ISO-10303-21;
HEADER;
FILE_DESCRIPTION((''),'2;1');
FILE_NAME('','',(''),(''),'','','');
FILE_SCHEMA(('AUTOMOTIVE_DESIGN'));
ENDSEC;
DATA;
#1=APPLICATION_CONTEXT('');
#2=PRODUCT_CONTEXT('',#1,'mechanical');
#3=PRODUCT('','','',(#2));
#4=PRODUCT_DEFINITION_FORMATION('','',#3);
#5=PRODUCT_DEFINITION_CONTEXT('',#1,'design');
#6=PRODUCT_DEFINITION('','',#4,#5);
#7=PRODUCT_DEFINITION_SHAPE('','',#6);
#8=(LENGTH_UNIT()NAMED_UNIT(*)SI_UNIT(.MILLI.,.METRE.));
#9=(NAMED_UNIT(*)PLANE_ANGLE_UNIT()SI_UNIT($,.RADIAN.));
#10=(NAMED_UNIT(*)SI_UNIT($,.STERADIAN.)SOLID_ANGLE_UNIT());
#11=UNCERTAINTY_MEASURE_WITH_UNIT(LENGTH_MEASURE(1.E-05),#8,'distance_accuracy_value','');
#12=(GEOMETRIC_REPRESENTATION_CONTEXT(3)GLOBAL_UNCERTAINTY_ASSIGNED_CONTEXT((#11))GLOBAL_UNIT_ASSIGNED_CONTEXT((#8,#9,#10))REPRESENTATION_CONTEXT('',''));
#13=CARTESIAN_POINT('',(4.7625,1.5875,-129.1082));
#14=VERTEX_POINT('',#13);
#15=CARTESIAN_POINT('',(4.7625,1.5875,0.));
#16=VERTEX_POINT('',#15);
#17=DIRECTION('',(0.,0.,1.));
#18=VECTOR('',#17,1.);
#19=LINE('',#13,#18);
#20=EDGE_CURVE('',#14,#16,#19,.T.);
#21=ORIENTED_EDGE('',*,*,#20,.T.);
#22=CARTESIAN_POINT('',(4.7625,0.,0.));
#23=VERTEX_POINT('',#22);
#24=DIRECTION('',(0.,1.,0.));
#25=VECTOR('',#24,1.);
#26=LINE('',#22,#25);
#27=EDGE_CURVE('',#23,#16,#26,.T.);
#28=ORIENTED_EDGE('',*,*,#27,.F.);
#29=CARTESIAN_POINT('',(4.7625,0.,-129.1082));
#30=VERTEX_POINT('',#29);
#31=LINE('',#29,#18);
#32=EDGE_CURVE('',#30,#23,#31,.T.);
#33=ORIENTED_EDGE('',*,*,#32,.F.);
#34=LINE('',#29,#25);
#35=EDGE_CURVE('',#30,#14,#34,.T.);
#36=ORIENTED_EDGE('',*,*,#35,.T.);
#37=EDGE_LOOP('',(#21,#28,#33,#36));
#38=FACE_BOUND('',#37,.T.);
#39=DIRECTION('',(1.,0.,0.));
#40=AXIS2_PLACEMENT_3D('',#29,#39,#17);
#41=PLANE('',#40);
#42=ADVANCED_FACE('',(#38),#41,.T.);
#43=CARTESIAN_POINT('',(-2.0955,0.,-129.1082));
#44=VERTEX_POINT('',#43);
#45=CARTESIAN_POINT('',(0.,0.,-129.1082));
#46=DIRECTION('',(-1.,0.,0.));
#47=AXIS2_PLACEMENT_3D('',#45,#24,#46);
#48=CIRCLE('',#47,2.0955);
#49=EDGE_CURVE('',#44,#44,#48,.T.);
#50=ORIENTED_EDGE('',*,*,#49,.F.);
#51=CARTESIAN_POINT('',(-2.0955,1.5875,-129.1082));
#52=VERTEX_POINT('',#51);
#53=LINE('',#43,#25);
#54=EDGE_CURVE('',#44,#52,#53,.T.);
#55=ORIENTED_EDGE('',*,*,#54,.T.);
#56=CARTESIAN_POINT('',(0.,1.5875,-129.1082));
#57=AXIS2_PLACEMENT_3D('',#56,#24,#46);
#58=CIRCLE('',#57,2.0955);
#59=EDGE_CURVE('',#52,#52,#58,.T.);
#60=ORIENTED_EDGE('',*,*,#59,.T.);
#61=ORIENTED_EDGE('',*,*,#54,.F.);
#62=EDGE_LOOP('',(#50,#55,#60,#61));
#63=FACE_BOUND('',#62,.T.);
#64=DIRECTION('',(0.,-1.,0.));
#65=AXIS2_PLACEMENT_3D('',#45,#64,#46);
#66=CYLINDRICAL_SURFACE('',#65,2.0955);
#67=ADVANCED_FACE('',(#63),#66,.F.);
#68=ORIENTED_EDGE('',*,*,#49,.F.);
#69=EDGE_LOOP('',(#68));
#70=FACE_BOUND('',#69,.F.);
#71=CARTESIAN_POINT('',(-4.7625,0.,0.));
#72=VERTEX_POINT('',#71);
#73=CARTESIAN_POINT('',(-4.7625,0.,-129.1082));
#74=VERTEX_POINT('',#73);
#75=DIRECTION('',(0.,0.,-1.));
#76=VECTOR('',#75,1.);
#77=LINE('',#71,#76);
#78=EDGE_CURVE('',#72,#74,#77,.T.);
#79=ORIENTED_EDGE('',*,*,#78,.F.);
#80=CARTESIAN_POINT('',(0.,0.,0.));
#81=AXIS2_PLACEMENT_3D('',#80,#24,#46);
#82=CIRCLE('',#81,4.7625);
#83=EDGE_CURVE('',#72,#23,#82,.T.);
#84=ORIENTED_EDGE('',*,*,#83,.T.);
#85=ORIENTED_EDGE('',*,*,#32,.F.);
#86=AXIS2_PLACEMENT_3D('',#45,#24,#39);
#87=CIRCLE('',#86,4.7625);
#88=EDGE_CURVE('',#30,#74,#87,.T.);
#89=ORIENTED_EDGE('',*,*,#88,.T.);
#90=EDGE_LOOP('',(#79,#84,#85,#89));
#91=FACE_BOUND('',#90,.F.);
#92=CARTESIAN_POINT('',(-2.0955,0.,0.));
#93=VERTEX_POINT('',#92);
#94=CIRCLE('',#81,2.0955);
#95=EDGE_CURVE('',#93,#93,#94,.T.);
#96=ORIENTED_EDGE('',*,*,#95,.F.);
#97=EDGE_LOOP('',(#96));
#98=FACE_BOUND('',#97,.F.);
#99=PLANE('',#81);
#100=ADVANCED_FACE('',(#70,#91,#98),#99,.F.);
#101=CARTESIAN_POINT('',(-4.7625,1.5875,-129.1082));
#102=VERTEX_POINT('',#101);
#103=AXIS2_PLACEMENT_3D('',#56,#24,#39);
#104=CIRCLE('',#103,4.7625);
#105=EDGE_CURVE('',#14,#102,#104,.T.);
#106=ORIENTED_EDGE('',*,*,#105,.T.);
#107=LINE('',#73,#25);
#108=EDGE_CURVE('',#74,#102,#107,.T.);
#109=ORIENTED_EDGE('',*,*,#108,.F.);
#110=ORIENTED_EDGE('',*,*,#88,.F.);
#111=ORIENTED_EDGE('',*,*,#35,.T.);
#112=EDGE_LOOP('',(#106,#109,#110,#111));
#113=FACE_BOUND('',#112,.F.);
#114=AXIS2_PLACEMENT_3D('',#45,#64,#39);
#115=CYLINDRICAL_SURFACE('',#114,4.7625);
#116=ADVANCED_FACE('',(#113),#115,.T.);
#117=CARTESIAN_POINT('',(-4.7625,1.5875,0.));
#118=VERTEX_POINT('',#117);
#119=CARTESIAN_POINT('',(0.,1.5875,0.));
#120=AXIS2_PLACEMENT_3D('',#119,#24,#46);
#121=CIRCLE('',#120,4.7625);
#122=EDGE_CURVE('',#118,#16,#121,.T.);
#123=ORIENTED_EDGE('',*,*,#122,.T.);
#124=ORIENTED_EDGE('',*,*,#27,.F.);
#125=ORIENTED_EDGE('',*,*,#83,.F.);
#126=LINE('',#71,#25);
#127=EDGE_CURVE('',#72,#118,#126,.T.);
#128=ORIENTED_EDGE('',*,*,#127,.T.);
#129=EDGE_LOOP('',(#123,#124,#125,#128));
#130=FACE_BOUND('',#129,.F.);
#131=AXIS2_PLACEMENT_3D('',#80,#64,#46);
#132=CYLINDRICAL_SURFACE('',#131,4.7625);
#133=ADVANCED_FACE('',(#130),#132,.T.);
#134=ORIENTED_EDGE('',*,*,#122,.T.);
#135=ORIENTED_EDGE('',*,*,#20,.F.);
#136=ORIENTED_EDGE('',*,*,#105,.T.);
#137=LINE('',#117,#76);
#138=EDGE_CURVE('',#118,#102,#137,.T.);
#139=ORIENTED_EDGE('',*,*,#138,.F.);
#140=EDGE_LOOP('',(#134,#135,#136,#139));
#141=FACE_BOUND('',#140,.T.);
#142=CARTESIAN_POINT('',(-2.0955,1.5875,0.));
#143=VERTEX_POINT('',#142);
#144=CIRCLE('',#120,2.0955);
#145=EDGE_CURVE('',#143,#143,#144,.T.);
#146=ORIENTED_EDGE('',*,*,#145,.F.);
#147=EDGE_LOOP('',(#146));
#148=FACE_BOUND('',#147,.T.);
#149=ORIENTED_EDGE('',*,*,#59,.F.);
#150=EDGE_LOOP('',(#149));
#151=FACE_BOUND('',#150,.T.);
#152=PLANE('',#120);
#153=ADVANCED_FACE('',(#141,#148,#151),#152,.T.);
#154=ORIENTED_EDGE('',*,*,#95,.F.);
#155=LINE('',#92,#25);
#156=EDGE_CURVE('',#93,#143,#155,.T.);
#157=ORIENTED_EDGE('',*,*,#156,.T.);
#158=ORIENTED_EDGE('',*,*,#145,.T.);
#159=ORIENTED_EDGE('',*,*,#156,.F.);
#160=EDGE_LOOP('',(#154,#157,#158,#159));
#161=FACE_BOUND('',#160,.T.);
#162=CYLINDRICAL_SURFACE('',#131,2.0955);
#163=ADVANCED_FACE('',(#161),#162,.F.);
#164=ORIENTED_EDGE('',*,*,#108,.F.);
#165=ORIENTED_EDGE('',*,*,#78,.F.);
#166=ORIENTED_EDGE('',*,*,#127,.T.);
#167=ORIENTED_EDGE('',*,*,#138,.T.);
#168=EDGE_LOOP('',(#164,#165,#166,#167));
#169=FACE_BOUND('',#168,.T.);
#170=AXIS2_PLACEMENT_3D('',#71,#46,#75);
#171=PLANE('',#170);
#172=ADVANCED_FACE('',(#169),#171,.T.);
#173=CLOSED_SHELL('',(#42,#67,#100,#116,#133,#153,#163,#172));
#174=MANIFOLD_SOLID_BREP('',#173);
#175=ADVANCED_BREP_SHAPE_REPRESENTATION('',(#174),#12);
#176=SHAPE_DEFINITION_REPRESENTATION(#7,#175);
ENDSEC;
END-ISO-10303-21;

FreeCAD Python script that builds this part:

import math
import FreeCAD as App
import Part
import Sketcher

V = App.Vector
Q = App.Units.Quantity

doc = App.newDocument("Part")
params = doc.addObject("Spreadsheet::Sheet", "Params")
for row, (alias, value) in enumerate([
    ("sketch1_diameter", "0.165 in"),
    ("sketch1_radius", "0.1875 in"),
    ("sketch1_height", "5.083 in"),
    ("pad1_length", "0.0625 in"),
], start=1):
    params.set(f"A{row}", alias)
    params.set(f"B{row}", "=" + value)
    params.setAlias(f"B{row}", alias)

body = doc.addObject("PartDesign::Body", "Body")

sketch1 = body.newObject("Sketcher::SketchObject", "Sketch")
sketch1.AttachmentSupport = (doc.getObject("XZ_Plane"), [""])
sketch1.MapMode = "FlatFace"
sketch1.addGeometry([
    Part.LineSegment(V(-4.8, -129.1, 0), V(-4.8, 0, 0)),
    Part.ArcOfCircle(Part.Circle(V(0, 0, 0), V(0, 0, 1), 4.8), math.radians(0), math.radians(180)),
    Part.LineSegment(V(4.8, 0, 0), V(4.8, -129.1, 0)),
    Part.ArcOfCircle(Part.Circle(V(0, -129.1, 0), V(0, 0, 1), 4.8), math.radians(180), math.radians(360)),
    Part.Circle(V(0, -129.1, 0), V(0, 0, 1), 2.1),
    Part.Circle(V(0, 0, 0), V(0, 0, 1), 2.1),
], False)
sketch1.addConstraint([
    Sketcher.Constraint("Tangent", 0, 2, 1, 2),
    Sketcher.Constraint("Tangent", 1, 1, 2, 1),
    Sketcher.Constraint("Tangent", 2, 2, 3, 2),
    Sketcher.Constraint("Tangent", 3, 1, 0, 1),
    Sketcher.Constraint("Vertical", 0),
    Sketcher.Constraint("Vertical", 2),
    Sketcher.Constraint("Coincident", 1, 3, -1, 1),
    Sketcher.Constraint("Coincident", 5, 3, -1, 1),
    Sketcher.Constraint("Coincident", 4, 3, 3, 3),
    Sketcher.Constraint("Equal", 4, 5),
    Sketcher.Constraint("Diameter", 4, Q("0.165 in")),
    Sketcher.Constraint("Radius", 1, Q("0.1875 in")),
    Sketcher.Constraint("DistanceY", 0, 1, 0, 2, Q("5.083 in")),
])
sketch1.setExpression("Constraints[10]", "Params.sketch1_diameter")
sketch1.setExpression("Constraints[11]", "Params.sketch1_radius")
sketch1.setExpression("Constraints[12]", "Params.sketch1_height")
pad1 = body.newObject("PartDesign::Pad", "Pad")
pad1.Profile = sketch1
pad1.setExpression("Length", "Params.pad1_length")
pad1.Reversed = True

doc.recompute()
